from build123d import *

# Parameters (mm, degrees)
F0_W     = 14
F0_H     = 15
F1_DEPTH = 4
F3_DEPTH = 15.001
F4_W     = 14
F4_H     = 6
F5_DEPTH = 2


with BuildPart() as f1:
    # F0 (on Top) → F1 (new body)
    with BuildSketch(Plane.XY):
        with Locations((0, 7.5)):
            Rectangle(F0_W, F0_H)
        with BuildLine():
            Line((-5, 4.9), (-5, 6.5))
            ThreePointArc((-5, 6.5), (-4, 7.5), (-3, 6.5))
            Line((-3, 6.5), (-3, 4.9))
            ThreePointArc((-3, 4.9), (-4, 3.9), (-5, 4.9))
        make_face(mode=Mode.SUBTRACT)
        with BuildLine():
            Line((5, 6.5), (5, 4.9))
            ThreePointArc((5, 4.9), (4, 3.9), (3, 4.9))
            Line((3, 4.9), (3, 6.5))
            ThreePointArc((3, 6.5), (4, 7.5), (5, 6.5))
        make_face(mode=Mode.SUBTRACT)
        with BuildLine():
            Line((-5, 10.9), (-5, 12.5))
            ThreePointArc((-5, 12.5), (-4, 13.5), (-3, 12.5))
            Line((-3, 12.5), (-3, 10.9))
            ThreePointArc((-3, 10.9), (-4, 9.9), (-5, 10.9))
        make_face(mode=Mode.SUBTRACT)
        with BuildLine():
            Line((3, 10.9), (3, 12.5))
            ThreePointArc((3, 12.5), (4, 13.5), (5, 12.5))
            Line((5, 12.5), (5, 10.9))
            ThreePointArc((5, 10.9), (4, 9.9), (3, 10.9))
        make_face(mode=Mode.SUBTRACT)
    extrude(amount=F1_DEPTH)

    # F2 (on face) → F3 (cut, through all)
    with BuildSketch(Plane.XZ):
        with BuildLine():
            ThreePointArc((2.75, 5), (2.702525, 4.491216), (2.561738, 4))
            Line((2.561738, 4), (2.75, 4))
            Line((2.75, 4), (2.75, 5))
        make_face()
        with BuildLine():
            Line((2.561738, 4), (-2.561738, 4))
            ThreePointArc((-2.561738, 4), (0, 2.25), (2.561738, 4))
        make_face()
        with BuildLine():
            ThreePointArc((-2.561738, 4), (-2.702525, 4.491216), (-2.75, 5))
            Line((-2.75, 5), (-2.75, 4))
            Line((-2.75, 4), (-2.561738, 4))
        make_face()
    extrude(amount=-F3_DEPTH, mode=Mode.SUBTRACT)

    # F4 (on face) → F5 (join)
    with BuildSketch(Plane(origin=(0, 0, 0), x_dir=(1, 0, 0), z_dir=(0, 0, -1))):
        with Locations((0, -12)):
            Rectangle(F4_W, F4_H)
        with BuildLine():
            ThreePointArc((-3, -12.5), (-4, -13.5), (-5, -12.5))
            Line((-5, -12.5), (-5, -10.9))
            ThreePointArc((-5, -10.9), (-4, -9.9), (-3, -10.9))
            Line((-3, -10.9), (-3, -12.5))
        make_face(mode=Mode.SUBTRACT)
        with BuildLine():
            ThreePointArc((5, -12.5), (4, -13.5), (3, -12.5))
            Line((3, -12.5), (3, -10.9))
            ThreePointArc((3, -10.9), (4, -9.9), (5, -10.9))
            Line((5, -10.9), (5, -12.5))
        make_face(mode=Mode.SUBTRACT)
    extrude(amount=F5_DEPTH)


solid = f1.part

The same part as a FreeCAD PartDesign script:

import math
import FreeCAD as App
import Part
import Sketcher
from FreeCAD import Vector

doc = App.newDocument("Part")
body = doc.addObject("PartDesign::Body", "Body")

# Sketch on XY plane
sketch1 = doc.addObject("Sketcher::SketchObject", "Sketch")
body.addObject(sketch1)
sketch1.AttachmentSupport = (doc.XY_Plane, [""])
sketch1.MapMode = "FlatFace"
sketch1.addGeometry([
    Part.LineSegment(Vector(-7, 15, 0), Vector(-7, 0, 0)),  # 0
    Part.LineSegment(Vector(-7, 0, 0), Vector(7, 0, 0)),  # 1
    Part.LineSegment(Vector(7, 0, 0), Vector(7, 15, 0)),  # 2
    Part.LineSegment(Vector(7, 15, 0), Vector(-7, 15, 0)),  # 3
    Part.ArcOfCircle(Part.Circle(Vector(-4, 4.9, 0), Vector(0, 0, 1), 1), math.radians(180), math.radians(360)),  # 4
    Part.LineSegment(Vector(-5, 4.9, 0), Vector(-5, 6.5, 0)),  # 5
    Part.ArcOfCircle(Part.Circle(Vector(-4, 6.5, 0), Vector(0, 0, 1), 1), math.radians(0), math.radians(180)),  # 6
    Part.LineSegment(Vector(-3, 6.5, 0), Vector(-3, 4.9, 0)),  # 7
    Part.ArcOfCircle(Part.Circle(Vector(4, 6.5, 0), Vector(0, 0, 1), 1), math.radians(0), math.radians(180)),  # 8
    Part.LineSegment(Vector(5, 6.5, 0), Vector(5, 4.9, 0)),  # 9
    Part.ArcOfCircle(Part.Circle(Vector(4, 4.9, 0), Vector(0, 0, 1), 1), math.radians(180), math.radians(360)),  # 10
    Part.LineSegment(Vector(3, 4.9, 0), Vector(3, 6.5, 0)),  # 11
    Part.ArcOfCircle(Part.Circle(Vector(-4, 10.9, 0), Vector(0, 0, 1), 1), math.radians(180), math.radians(360)),  # 12
    Part.LineSegment(Vector(-5, 10.9, 0), Vector(-5, 12.5, 0)),  # 13
    Part.ArcOfCircle(Part.Circle(Vector(-4, 12.5, 0), Vector(0, 0, 1), 1), math.radians(0), math.radians(180)),  # 14
    Part.LineSegment(Vector(-3, 12.5, 0), Vector(-3, 10.9, 0)),  # 15
    Part.ArcOfCircle(Part.Circle(Vector(4, 10.9, 0), Vector(0, 0, 1), 1), math.radians(180), math.radians(360)),  # 16
    Part.LineSegment(Vector(3, 10.9, 0), Vector(3, 12.5, 0)),  # 17
    Part.ArcOfCircle(Part.Circle(Vector(4, 12.5, 0), Vector(0, 0, 1), 1), math.radians(0), math.radians(180)),  # 18
    Part.LineSegment(Vector(5, 12.5, 0), Vector(5, 10.9, 0)),  # 19
], False)
sketch1.addConstraint([
    Sketcher.Constraint("Coincident", 0, 2, 1, 1),
    Sketcher.Constraint("Coincident", 1, 2, 2, 1),
    Sketcher.Constraint("Coincident", 2, 2, 3, 1),
    Sketcher.Constraint("Coincident", 3, 2, 0, 1),
    Sketcher.Constraint("Tangent", 4, 1, 5, 1),
    Sketcher.Constraint("Tangent", 5, 2, 6, 2),
    Sketcher.Constraint("Tangent", 6, 1, 7, 1),
    Sketcher.Constraint("Tangent", 7, 2, 4, 2),
    Sketcher.Constraint("Tangent", 8, 1, 9, 1),
    Sketcher.Constraint("Tangent", 9, 2, 10, 2),
    Sketcher.Constraint("Tangent", 10, 1, 11, 1),
    Sketcher.Constraint("Tangent", 11, 2, 8, 2),
    Sketcher.Constraint("Tangent", 12, 1, 13, 1),
    Sketcher.Constraint("Tangent", 13, 2, 14, 2),
    Sketcher.Constraint("Tangent", 14, 1, 15, 1),
    Sketcher.Constraint("Tangent", 15, 2, 12, 2),
    Sketcher.Constraint("Tangent", 16, 1, 17, 1),
    Sketcher.Constraint("Tangent", 17, 2, 18, 2),
    Sketcher.Constraint("Tangent", 18, 1, 19, 1),
    Sketcher.Constraint("Tangent", 19, 2, 16, 2),
    Sketcher.Constraint("Vertical", 0),
    Sketcher.Constraint("Horizontal", 1),
    Sketcher.Constraint("Vertical", 2),
    Sketcher.Constraint("Horizontal", 3),
    Sketcher.Constraint("Vertical", 5),
    Sketcher.Constraint("Vertical", 7),
    Sketcher.Constraint("Vertical", 9),
    Sketcher.Constraint("Vertical", 11),
    Sketcher.Constraint("Vertical", 13),
    Sketcher.Constraint("Vertical", 15),
    Sketcher.Constraint("Vertical", 17),
    Sketcher.Constraint("Vertical", 19),
    Sketcher.Constraint("Equal", 6, 8),
    Sketcher.Constraint("Equal", 10, 12),
    Sketcher.Constraint("Equal", 14, 16),
    Sketcher.Constraint("Symmetric", 0, 2, 1, 2, -1, 1),
    Sketcher.Constraint("Symmetric", 6, 3, 8, 3, -2),
    Sketcher.Constraint("Symmetric", 12, 3, 16, 3, -2),
    Sketcher.Constraint("Horizontal", 4, 3, 10, 3),
    Sketcher.Constraint("Horizontal", 14, 3, 18, 3),
    Sketcher.Constraint("Vertical", 6, 3, 12, 3),
    Sketcher.Constraint("Equal", 11, 13),
    Sketcher.Constraint("Radius", 4, 1.0),
    Sketcher.Constraint("DistanceX", 1, 1, 1, 2, 14.0),
    Sketcher.Constraint("DistanceY", 0, 2, 0, 1, 15.0),
    Sketcher.Constraint("DistanceY", 5, 1, 5, 2, 1.6),
    Sketcher.Constraint("DistanceX", 4, 3, -1, 1, 4.0),
    Sketcher.Constraint("DistanceY", 4, 3, 12, 3, 6.0),
    Sketcher.Constraint("DistanceY", -1, 1, 4, 3, 4.9),
])
pad1 = doc.addObject("PartDesign::Pad", "Pad")
body.addObject(pad1)
pad1.Profile = sketch1
pad1.Length = 4

# Sketch on XZ plane
sketch2 = doc.addObject("Sketcher::SketchObject", "Sketch001")
body.addObject(sketch2)
sketch2.AttachmentSupport = (doc.XZ_Plane, [""])
sketch2.MapMode = "FlatFace"
sketch2.addGeometry([
    Part.ArcOfCircle(Part.Circle(Vector(0.000018, 4.999996, 0), Vector(0, 0, 1), 2.749982), math.radians(-21.323739), math.radians(0.000087)),  # 0
    Part.LineSegment(Vector(2.561738, 4, 0), Vector(2.75, 4, 0)),  # 1
    Part.LineSegment(Vector(2.75, 4, 0), Vector(2.75, 5, 0)),  # 2
    Part.LineSegment(Vector(2.561738, 4, 0), Vector(-2.561738, 4, 0)),  # 3
    Part.ArcOfCircle(Part.Circle(Vector(0, 5, 0), Vector(0, 0, 1), 2.75), math.radians(-158.676307), math.radians(-21.323693)),  # 4
    Part.ArcOfCircle(Part.Circle(Vector(-0.000018, 4.999996, 0), Vector(0, 0, 1), 2.749982), math.radians(179.999913), math.radians(201.323739)),  # 5
    Part.LineSegment(Vector(-2.75, 5, 0), Vector(-2.75, 4, 0)),  # 6
    Part.LineSegment(Vector(-2.75, 4, 0), Vector(-2.561738, 4, 0)),  # 7
], False)
sketch2.addConstraint([
    Sketcher.Constraint("Coincident", 0, 1, 1, 1),
    Sketcher.Constraint("Coincident", 1, 2, 2, 1),
    Sketcher.Constraint("Tangent", 2, 2, 0, 2),
    Sketcher.Constraint("Coincident", 3, 1, 4, 2),
    Sketcher.Constraint("Coincident", 4, 1, 3, 2),
    Sketcher.Constraint("Tangent", 5, 1, 6, 1),
    Sketcher.Constraint("Coincident", 6, 2, 7, 1),
    Sketcher.Constraint("Coincident", 7, 2, 5, 2),
    Sketcher.Constraint("Horizontal", 1),
    Sketcher.Constraint("Vertical", 2),
    Sketcher.Constraint("Horizontal", 3),
    Sketcher.Constraint("Vertical", 6),
    Sketcher.Constraint("Horizontal", 7),
    Sketcher.Constraint("Coincident", 3, 1, 0, 1),
    Sketcher.Constraint("Coincident", 7, 2, 4, 1),
    Sketcher.Constraint("Equal", 0, 5),
    Sketcher.Constraint("Symmetric", 0, 3, 5, 3, -2),
    Sketcher.Constraint("Horizontal", 4, 3, 2, 2),
    Sketcher.Constraint("DistanceY", 2, 1, 2, 2, 1.0),
    Sketcher.Constraint("Radius", 4, 2.75),
    Sketcher.Constraint("DistanceY", -1, 1, 4, 3, 5.0),
    Sketcher.Constraint("DistanceX", -1, 1, 1, 2, 2.75),
])
pocket1 = doc.addObject("PartDesign::Pocket", "Pocket")
body.addObject(pocket1)
pocket1.Profile = sketch2
pocket1.Type = "ThroughAll"

# Sketch on XY plane
sketch3 = doc.addObject("Sketcher::SketchObject", "Sketch002")
body.addObject(sketch3)
sketch3.AttachmentSupport = (doc.XY_Plane, [""])
sketch3.MapMode = "FlatFace"
sketch3.addGeometry([
    Part.LineSegment(Vector(-7, 9, 0), Vector(-7, 15, 0)),  # 0
    Part.LineSegment(Vector(-7, 15, 0), Vector(7, 15, 0)),  # 1
    Part.LineSegment(Vector(7, 15, 0), Vector(7, 9, 0)),  # 2
    Part.LineSegment(Vector(7, 9, 0), Vector(-7, 9, 0)),  # 3
    Part.LineSegment(Vector(-3, 10.9, 0), Vector(-3, 12.5, 0)),  # 4
    Part.ArcOfCircle(Part.Circle(Vector(-4, 12.5, 0), Vector(0, 0, 1), 1), math.radians(0), math.radians(180)),  # 5
    Part.LineSegment(Vector(-5, 12.5, 0), Vector(-5, 10.9, 0)),  # 6
    Part.ArcOfCircle(Part.Circle(Vector(-4, 10.9, 0), Vector(0, 0, 1), 1), math.radians(180), math.radians(360)),  # 7
    Part.LineSegment(Vector(5, 10.9, 0), Vector(5, 12.5, 0)),  # 8
    Part.ArcOfCircle(Part.Circle(Vector(4, 12.5, 0), Vector(0, 0, 1), 1), math.radians(0), math.radians(180)),  # 9
    Part.LineSegment(Vector(3, 12.5, 0), Vector(3, 10.9, 0)),  # 10
    Part.ArcOfCircle(Part.Circle(Vector(4, 10.9, 0), Vector(0, 0, 1), 1), math.radians(180), math.radians(360)),  # 11
], False)
sketch3.addConstraint([
    Sketcher.Constraint("Coincident", 0, 2, 1, 1),
    Sketcher.Constraint("Coincident", 1, 2, 2, 1),
    Sketcher.Constraint("Coincident", 2, 2, 3, 1),
    Sketcher.Constraint("Coincident", 3, 2, 0, 1),
    Sketcher.Constraint("Tangent", 4, 2, 5, 1),
    Sketcher.Constraint("Tangent", 5, 2, 6, 1),
    Sketcher.Constraint("Tangent", 6, 2, 7, 1),
    Sketcher.Constraint("Tangent", 7, 2, 4, 1),
    Sketcher.Constraint("Tangent", 8, 2, 9, 1),
    Sketcher.Constraint("Tangent", 9, 2, 10, 1),
    Sketcher.Constraint("Tangent", 10, 2, 11, 1),
    Sketcher.Constraint("Tangent", 11, 2, 8, 1),
    Sketcher.Constraint("Vertical", 0),
    Sketcher.Constraint("Horizontal", 1),
    Sketcher.Constraint("Vertical", 2),
    Sketcher.Constraint("Horizontal", 3),
    Sketcher.Constraint("Vertical", 4),
    Sketcher.Constraint("Vertical", 6),
    Sketcher.Constraint("Vertical", 8),
    Sketcher.Constraint("Vertical", 10),
    Sketcher.Constraint("Equal", 7, 9),
    Sketcher.Constraint("Symmetric", 5, 3, 9, 3, -2),
    Sketcher.Constraint("Horizontal", 7, 3, 11, 3),
    Sketcher.Constraint("Radius", 5, 1.0),
    Sketcher.Constraint("DistanceX", 1, 1, 1, 2, 14.0),
    Sketcher.Constraint("DistanceY", 0, 1, 0, 2, 6.0),
    Sketcher.Constraint("DistanceY", 4, 1, 4, 2, 1.6),
    Sketcher.Constraint("DistanceX", 5, 3, -1, 1, 4.0),
    Sketcher.Constraint("DistanceX", 0, 2, -1, 1, 7.0),
    Sketcher.Constraint("DistanceY", -1, 1, 0, 2, 15.0),
    Sketcher.Constraint("DistanceY", -1, 1, 5, 3, 12.5),
])
pad2 = doc.addObject("PartDesign::Pad", "Pad001")
body.addObject(pad2)
pad2.Profile = sketch3
pad2.Length = 2
pad2.Reversed = True

doc.recompute()
